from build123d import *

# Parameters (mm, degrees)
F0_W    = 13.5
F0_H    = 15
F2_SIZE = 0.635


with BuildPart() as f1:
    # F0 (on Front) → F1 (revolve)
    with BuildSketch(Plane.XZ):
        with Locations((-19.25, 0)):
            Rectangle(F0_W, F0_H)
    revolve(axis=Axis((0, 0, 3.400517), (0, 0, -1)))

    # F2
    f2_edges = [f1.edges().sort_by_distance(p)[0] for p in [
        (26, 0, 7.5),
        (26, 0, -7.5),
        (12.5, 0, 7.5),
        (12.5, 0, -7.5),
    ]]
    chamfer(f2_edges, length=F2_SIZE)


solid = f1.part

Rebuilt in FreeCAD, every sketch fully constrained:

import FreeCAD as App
import Part
import Sketcher
from FreeCAD import Vector


def edges_at(feature, points):
    """Names of the edges that pass closest to the given points."""
    edges = feature.Shape.Edges
    near = lambda p: min(range(len(edges)), key=lambda i: edges[i].distToShape(Part.Vertex(*p))[0])
    return sorted({f"Edge{near(p) + 1}" for p in points})


def add_polygon(sketch, points):
    """Adds a closed chain of lines whose ends are joined by coincident constraints."""
    first, n = sketch.GeometryCount, len(points)
    for a, b in zip(points, points[1:] + points[:1]):
        sketch.addGeometry(Part.LineSegment(App.Vector(*a, 0), App.Vector(*b, 0)), False)
    for i in range(n):
        sketch.addConstraint(Sketcher.Constraint("Coincident", first + i, 2, first + (i + 1) % n, 1))

doc = App.newDocument("Part")
body = doc.addObject("PartDesign::Body", "Body")

# Sketch on XZ plane
sketch1 = doc.addObject("Sketcher::SketchObject", "Sketch")
body.addObject(sketch1)
sketch1.AttachmentSupport = (doc.XZ_Plane, [""])
sketch1.MapMode = "FlatFace"
add_polygon(sketch1, [(-26, 8), (-26, -8), (-12, -8), (-12, 8)])  # lines 0-3
sketch1.addConstraint([
    Sketcher.Constraint("Vertical", 0),
    Sketcher.Constraint("Horizontal", 1),
    Sketcher.Constraint("Vertical", 2),
    Sketcher.Constraint("Horizontal", 3),
    Sketcher.Constraint("DistanceY", 0, 2, 0, 1, 15.0),
    Sketcher.Constraint("DistanceX", 1, 1, 1, 2, 13.5),
    Sketcher.Constraint("DistanceX", 0, 2, -1, 1, 26.0),
    Sketcher.Constraint("DistanceY", 0, 2, -1, 1, 7.5),
])
revolution = doc.addObject("PartDesign::Revolution", "Revolution")
body.addObject(revolution)
revolution.Profile = sketch1
revolution.ReferenceAxis = (sketch1, ["V_Axis"])
revolution.Angle = 360
doc.recompute()

chamfer = doc.addObject("PartDesign::Chamfer", "Chamfer")
body.addObject(chamfer)
chamfer.Base = (revolution, edges_at(revolution, [
    (26, 0, 7.5),
    (26, 0, -7.5),
    (12.5, 0, 7.5),
    (12.5, 0, -7.5),
]))
chamfer.Size = 0.635

doc.recompute()
